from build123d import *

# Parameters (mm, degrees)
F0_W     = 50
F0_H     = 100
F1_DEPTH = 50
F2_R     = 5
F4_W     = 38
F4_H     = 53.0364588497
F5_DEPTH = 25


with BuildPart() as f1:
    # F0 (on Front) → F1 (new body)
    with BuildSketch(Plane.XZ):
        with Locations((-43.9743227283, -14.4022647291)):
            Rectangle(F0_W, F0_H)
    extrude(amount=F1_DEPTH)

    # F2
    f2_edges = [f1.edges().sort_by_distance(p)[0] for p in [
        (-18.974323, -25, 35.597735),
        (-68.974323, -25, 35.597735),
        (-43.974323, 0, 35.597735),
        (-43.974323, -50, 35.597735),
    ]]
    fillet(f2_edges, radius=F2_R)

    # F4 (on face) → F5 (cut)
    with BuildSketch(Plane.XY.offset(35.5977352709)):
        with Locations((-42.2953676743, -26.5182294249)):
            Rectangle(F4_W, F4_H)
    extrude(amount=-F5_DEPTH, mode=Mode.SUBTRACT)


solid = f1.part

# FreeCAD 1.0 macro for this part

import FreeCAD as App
import Part
import Sketcher


def edges_at(feature, points):
    """Names of the edges that pass closest to the given points."""
    edges = feature.Shape.Edges
    near = lambda p: min(range(len(edges)), key=lambda i: edges[i].distToShape(Part.Vertex(*p))[0])
    return sorted({f"Edge{near(p) + 1}" for p in points})

doc = App.newDocument("Part")
body = doc.addObject("PartDesign::Body", "Body")

sketch1 = body.newObject("Sketcher::SketchObject", "Sketch")
sketch1.AttachmentSupport = (doc.getObject("XZ_Plane"), [""])
sketch1.MapMode = "FlatFace"
sketch1.addGeometry(Part.LineSegment(App.Vector(-68.974323, 35.597735, 0), App.Vector(-68.974323, -64.402265, 0)), False)
sketch1.addGeometry(Part.LineSegment(App.Vector(-68.974323, -64.402265, 0), App.Vector(-18.974323, -64.402265, 0)), False)
sketch1.addGeometry(Part.LineSegment(App.Vector(-18.974323, -64.402265, 0), App.Vector(-18.974323, 35.597735, 0)), False)
sketch1.addGeometry(Part.LineSegment(App.Vector(-18.974323, 35.597735, 0), App.Vector(-68.974323, 35.597735, 0)), False)
sketch1.addConstraint(Sketcher.Constraint("Coincident", 0, 2, 1, 1))
sketch1.addConstraint(Sketcher.Constraint("Coincident", 1, 2, 2, 1))
sketch1.addConstraint(Sketcher.Constraint("Coincident", 2, 2, 3, 1))
sketch1.addConstraint(Sketcher.Constraint("Coincident", 3, 2, 0, 1))
sketch1.addConstraint(Sketcher.Constraint("Vertical", 0))
sketch1.addConstraint(Sketcher.Constraint("Horizontal", 1))
sketch1.addConstraint(Sketcher.Constraint("Vertical", 2))
sketch1.addConstraint(Sketcher.Constraint("Horizontal", 3))
sketch1.addConstraint(Sketcher.Constraint("DistanceX", 1, 1, 1, 2, 50.0))
sketch1.addConstraint(Sketcher.Constraint("DistanceY", 0, 2, 0, 1, 100.0))
sketch1.addConstraint(Sketcher.Constraint("DistanceX", 0, 2, -1, 1, 68.974323))
sketch1.addConstraint(Sketcher.Constraint("DistanceY", 0, 2, -1, 1, 64.402265))
pad1 = body.newObject("PartDesign::Pad", "Pad")
pad1.Profile = sketch1
pad1.Length = 50
doc.recompute()

fillet = body.newObject("PartDesign::Fillet", "Fillet")
fillet.Base = (pad1, edges_at(pad1, [
    (-18.974, -25, 35.598),
    (-68.974, -25, 35.598),
    (-43.974, 0, 35.598),
    (-43.974, -50, 35.598),
]))
fillet.Radius = 5

sketch2 = body.newObject("Sketcher::SketchObject", "Sketch001")
sketch2.AttachmentSupport = (doc.getObject("XY_Plane"), [""])
sketch2.MapMode = "FlatFace"
sketch2.AttachmentOffset = App.Placement(App.Vector(0, 0, 35.597735), App.Rotation())
sketch2.addGeometry(Part.LineSegment(App.Vector(-61.295368, 0, 0), App.Vector(-61.295368, -53.036459, 0)), False)
sketch2.addGeometry(Part.LineSegment(App.Vector(-61.295368, -53.036459, 0), App.Vector(-23.295368, -53.036459, 0)), False)
sketch2.addGeometry(Part.LineSegment(App.Vector(-23.295368, -53.036459, 0), App.Vector(-23.295368, 0, 0)), False)
sketch2.addGeometry(Part.LineSegment(App.Vector(-23.295368, 0, 0), App.Vector(-61.295368, 0, 0)), False)
sketch2.addConstraint(Sketcher.Constraint("Coincident", 0, 2, 1, 1))
sketch2.addConstraint(Sketcher.Constraint("Coincident", 1, 2, 2, 1))
sketch2.addConstraint(Sketcher.Constraint("Coincident", 2, 2, 3, 1))
sketch2.addConstraint(Sketcher.Constraint("Coincident", 3, 2, 0, 1))
sketch2.addConstraint(Sketcher.Constraint("Vertical", 0))
sketch2.addConstraint(Sketcher.Constraint("Horizontal", 1))
sketch2.addConstraint(Sketcher.Constraint("Vertical", 2))
sketch2.addConstraint(Sketcher.Constraint("Horizontal", 3))
sketch2.addConstraint(Sketcher.Constraint("PointOnObject", 2, 2, -1))
sketch2.addConstraint(Sketcher.Constraint("DistanceX", 1, 1, 1, 2, 38.0))
sketch2.addConstraint(Sketcher.Constraint("DistanceY", 0, 2, 0, 1, 53.036459))
sketch2.addConstraint(Sketcher.Constraint("DistanceX", 0, 2, -1, 1, 61.295368))
pocket1 = body.newObject("PartDesign::Pocket", "Pocket")
pocket1.Profile = sketch2
pocket1.Length = 25

doc.recompute()
